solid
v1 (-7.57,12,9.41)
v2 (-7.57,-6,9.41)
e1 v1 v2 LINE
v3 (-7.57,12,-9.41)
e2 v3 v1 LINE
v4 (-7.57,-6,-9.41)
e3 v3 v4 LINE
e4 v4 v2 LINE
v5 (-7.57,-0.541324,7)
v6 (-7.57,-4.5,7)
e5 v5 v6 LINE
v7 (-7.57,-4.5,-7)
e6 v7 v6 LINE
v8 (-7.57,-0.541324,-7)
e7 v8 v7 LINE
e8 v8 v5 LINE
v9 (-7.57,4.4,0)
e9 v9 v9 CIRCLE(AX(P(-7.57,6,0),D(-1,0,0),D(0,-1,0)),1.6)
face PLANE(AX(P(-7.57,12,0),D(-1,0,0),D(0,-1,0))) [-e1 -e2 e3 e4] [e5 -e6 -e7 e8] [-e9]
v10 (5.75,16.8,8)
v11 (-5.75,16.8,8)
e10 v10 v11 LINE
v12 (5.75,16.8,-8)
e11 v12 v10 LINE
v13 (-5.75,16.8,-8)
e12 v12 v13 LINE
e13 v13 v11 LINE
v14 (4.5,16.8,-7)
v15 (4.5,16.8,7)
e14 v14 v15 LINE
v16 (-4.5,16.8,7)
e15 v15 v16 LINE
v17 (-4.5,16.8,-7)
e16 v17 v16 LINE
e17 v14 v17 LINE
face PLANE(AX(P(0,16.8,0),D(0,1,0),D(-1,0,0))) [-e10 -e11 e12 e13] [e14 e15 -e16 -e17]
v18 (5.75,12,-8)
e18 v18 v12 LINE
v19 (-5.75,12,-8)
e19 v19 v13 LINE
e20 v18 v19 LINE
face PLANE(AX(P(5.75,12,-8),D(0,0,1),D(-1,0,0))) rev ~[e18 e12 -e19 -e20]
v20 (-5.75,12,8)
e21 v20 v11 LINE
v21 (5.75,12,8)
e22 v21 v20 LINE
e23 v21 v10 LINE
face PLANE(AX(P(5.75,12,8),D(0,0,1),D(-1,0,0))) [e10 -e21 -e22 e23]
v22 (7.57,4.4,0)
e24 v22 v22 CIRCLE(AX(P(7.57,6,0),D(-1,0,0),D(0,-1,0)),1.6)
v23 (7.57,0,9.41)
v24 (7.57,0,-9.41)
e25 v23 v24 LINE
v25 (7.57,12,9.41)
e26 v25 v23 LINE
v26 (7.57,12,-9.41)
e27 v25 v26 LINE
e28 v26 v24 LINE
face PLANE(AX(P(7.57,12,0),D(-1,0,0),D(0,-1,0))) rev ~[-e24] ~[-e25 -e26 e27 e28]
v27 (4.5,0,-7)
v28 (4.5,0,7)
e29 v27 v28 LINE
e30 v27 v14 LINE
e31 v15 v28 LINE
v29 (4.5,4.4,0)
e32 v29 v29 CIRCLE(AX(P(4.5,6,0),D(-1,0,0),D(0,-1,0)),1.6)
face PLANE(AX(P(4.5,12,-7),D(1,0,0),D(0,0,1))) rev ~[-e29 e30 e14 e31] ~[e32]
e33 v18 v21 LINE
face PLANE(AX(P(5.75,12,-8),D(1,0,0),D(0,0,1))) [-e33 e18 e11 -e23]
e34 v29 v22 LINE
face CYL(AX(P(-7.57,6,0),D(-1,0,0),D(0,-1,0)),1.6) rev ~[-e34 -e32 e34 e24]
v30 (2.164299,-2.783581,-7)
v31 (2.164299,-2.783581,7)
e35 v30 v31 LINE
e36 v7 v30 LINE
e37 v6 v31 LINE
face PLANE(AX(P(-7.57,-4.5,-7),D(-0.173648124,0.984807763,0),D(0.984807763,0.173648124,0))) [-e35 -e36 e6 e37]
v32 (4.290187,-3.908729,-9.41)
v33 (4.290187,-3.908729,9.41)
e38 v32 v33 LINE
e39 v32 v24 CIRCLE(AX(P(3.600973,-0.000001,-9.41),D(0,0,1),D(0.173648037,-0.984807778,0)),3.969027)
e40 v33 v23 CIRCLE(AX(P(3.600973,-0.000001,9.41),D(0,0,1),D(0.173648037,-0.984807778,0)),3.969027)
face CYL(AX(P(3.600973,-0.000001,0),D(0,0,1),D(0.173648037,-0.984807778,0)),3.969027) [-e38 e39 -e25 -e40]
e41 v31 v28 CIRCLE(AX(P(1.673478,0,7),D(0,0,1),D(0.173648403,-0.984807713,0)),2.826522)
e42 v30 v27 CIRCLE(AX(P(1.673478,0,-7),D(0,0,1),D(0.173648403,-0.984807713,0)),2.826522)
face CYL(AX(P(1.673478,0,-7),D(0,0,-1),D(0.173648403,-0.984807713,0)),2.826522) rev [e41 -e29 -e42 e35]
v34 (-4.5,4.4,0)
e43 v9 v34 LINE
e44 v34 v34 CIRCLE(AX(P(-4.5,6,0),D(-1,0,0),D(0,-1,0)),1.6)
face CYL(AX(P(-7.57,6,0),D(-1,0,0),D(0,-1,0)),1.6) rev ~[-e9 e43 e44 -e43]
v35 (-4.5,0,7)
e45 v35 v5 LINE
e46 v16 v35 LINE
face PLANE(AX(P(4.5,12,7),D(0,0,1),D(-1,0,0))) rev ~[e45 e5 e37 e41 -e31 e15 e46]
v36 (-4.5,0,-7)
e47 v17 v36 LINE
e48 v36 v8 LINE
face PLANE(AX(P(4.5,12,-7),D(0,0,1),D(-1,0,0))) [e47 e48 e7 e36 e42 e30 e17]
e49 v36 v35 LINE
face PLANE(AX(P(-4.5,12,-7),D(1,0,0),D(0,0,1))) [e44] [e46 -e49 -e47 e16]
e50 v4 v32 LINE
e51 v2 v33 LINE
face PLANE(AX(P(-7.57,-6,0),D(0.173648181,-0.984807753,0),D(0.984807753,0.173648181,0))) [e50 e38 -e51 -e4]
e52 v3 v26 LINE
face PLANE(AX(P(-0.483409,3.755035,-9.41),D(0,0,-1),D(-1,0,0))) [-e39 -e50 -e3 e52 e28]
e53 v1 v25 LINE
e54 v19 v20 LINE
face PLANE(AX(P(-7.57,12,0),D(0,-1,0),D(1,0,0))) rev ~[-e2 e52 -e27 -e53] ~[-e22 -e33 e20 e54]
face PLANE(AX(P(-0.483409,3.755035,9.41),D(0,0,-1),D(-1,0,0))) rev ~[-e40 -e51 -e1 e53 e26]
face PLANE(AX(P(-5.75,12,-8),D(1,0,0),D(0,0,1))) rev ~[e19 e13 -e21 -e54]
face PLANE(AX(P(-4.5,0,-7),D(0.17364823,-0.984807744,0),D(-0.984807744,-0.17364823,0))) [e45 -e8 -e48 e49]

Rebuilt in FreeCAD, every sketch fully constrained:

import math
import FreeCAD as App
import Part
import Sketcher
from FreeCAD import Vector
Q = App.Units.Quantity


def add_polygon(sketch, points):
    """Adds a closed chain of lines whose ends are joined by coincident constraints."""
    first, n = sketch.GeometryCount, len(points)
    for a, b in zip(points, points[1:] + points[:1]):
        sketch.addGeometry(Part.LineSegment(App.Vector(*a, 0), App.Vector(*b, 0)), False)
    for i in range(n):
        sketch.addConstraint(Sketcher.Constraint("Coincident", first + i, 2, first + (i + 1) % n, 1))

doc = App.newDocument("Part")
body = doc.addObject("PartDesign::Body", "Body")

# Sketch on XY plane
sketch1 = doc.addObject("Sketcher::SketchObject", "Sketch")
body.addObject(sketch1)
sketch1.AttachmentSupport = (doc.XY_Plane, [""])
sketch1.MapMode = "FlatFace"
sketch1.addGeometry([
    Part.LineSegment(Vector(7.6, 12, 0), Vector(-7.6, 12, 0)),  # 0
    Part.LineSegment(Vector(-7.6, 12, 0), Vector(-7.6, -6, 0)),  # 1
    Part.LineSegment(Vector(-7.6, -6, 0), Vector(4.3, -3.9, 0)),  # 2
    Part.ArcOfCircle(Part.Circle(Vector(3.6, 0, 0), Vector(0, 0, 1), 4), math.radians(-80), math.radians(0)),  # 3
    Part.LineSegment(Vector(7.6, 0, 0), Vector(7.6, 12, 0)),  # 4
], False)
sketch1.addConstraint([
    Sketcher.Constraint("Coincident", 0, 2, 1, 1),
    Sketcher.Constraint("Coincident", 1, 2, 2, 1),
    Sketcher.Constraint("Tangent", 2, 2, 3, 1),
    Sketcher.Constraint("Tangent", 3, 2, 4, 1),
    Sketcher.Constraint("Coincident", 4, 2, 0, 1),
    Sketcher.Constraint("Horizontal", 0),
    Sketcher.Constraint("Vertical", 1),
    Sketcher.Constraint("Vertical", 4),
    Sketcher.Constraint("PointOnObject", 3, 3, -1),
    Sketcher.Constraint("DistanceY", 1, 2, 1, 1, Q("18 mm")),
    Sketcher.Constraint("DistanceY", 4, 1, 4, 2, Q("12 mm")),
    Sketcher.Constraint("Angle", 2, Q("10 deg")),
    Sketcher.Constraint("DistanceX", 0, 2, 0, 1, Q("15.14 mm")),
    Sketcher.Constraint("DistanceX", 0, 2, -1, 1, Q("7.57 mm")),
])
pad1 = doc.addObject("PartDesign::Pad", "Pad")
body.addObject(pad1)
pad1.Profile = sketch1
pad1.Length = 18.82
pad1.Midplane = True

# Sketch on XZ plane
sketch2 = doc.addObject("Sketcher::SketchObject", "Sketch001")
body.addObject(sketch2)
sketch2.AttachmentSupport = (doc.XZ_Plane, [""])
sketch2.MapMode = "FlatFace"
sketch2.AttachmentOffset = App.Placement(Vector(0, 0, -12), App.Rotation())
add_polygon(sketch2, [(4, 7), (4, -7), (-4, -7), (-4, 7)])  # lines 0-3
sketch2.addConstraint([
    Sketcher.Constraint("Vertical", 0),
    Sketcher.Constraint("Horizontal", 1),
    Sketcher.Constraint("Vertical", 2),
    Sketcher.Constraint("Horizontal", 3),
    Sketcher.Constraint("Symmetric", 0, 2, 2, 2, -1, 1),
    Sketcher.Constraint("DistanceX", 1, 2, 1, 1, Q("9 mm")),
    Sketcher.Constraint("DistanceY", 0, 2, 0, 1, Q("14 mm")),
])
pocket1 = doc.addObject("PartDesign::Pocket", "Pocket")
body.addObject(pocket1)
pocket1.Profile = sketch2
pocket1.Length = 12
pocket1.Reversed = True

# Sketch on XY plane
sketch3 = doc.addObject("Sketcher::SketchObject", "Sketch002")
body.addObject(sketch3)
sketch3.AttachmentSupport = (doc.XY_Plane, [""])
sketch3.MapMode = "FlatFace"
sketch3.AttachmentOffset = App.Placement(Vector(0, 0, -7), App.Rotation())
sketch3.addGeometry([
    Part.LineSegment(Vector(-4.5, 0, 0), Vector(-7.6, -0.5, 0)),  # 0
    Part.LineSegment(Vector(-7.6, -0.5, 0), Vector(-7.6, -4.5, 0)),  # 1
    Part.LineSegment(Vector(-7.6, -4.5, 0), Vector(2.2, -2.8, 0)),  # 2
    Part.ArcOfCircle(Part.Circle(Vector(1.7, 0, 0), Vector(0, 0, 1), 2.8), math.radians(-80), math.radians(0)),  # 3
    Part.LineSegment(Vector(4.5, 0, 0), Vector(-4.5, 0, 0)),  # 4
], False)
sketch3.addConstraint([
    Sketcher.Constraint("Coincident", 0, 2, 1, 1),
    Sketcher.Constraint("Coincident", 1, 2, 2, 1),
    Sketcher.Constraint("Tangent", 2, 2, 3, 1),
    Sketcher.Constraint("Coincident", 3, 2, 4, 1),
    Sketcher.Constraint("Coincident", 4, 2, 0, 1),
    Sketcher.Constraint("Vertical", 1),
    Sketcher.Constraint("Horizontal", 4),
    Sketcher.Constraint("Symmetric", 3, 2, 4, 2, -1, 1),
    Sketcher.Constraint("PointOnObject", 3, 3, -1),
    Sketcher.Constraint("Parallel", 0, 2),
    Sketcher.Constraint("DistanceX", 4, 2, 4, 1, Q("9 mm")),
    Sketcher.Constraint("Angle", 0, Q("-169.999997 deg")),
    Sketcher.Constraint("DistanceY", 1, 2, -1, 1, Q("4.5 mm")),
    Sketcher.Constraint("DistanceX", 0, 2, -1, 1, Q("7.57 mm")),
])
pocket2 = doc.addObject("PartDesign::Pocket", "Pocket001")
body.addObject(pocket2)
pocket2.Profile = sketch3
pocket2.Length = 14
pocket2.Reversed = True

# Sketch on XZ plane
sketch4 = doc.addObject("Sketcher::SketchObject", "Sketch003")
body.addObject(sketch4)
sketch4.AttachmentSupport = (doc.XZ_Plane, [""])
sketch4.MapMode = "FlatFace"
sketch4.AttachmentOffset = App.Placement(Vector(0, 0, -12), App.Rotation())
add_polygon(sketch4, [(6, 8), (6, -8), (-6, -8), (-6, 8)])  # lines 0-3
add_polygon(sketch4, [(-4, -7), (4, -7), (4, 7), (-4, 7)])  # lines 4-7
sketch4.addConstraint([
    Sketcher.Constraint("Vertical", 0),
    Sketcher.Constraint("Horizontal", 1),
    Sketcher.Constraint("Vertical", 2),
    Sketcher.Constraint("Horizontal", 3),
    Sketcher.Constraint("Horizontal", 4),
    Sketcher.Constraint("Vertical", 5),
    Sketcher.Constraint("Horizontal", 6),
    Sketcher.Constraint("Vertical", 7),
    Sketcher.Constraint("Symmetric", 0, 2, 2, 2, -1, 1),
    Sketcher.Constraint("Symmetric", 4, 2, 6, 2, -1, 1),
    Sketcher.Constraint("DistanceX", 4, 1, 4, 2, Q("9 mm")),
    Sketcher.Constraint("DistanceY", 0, 2, 0, 1, Q("16 mm")),
    Sketcher.Constraint("DistanceY", 5, 1, 5, 2, Q("14 mm")),
    Sketcher.Constraint("DistanceX", 1, 2, 1, 1, Q("11.5 mm")),
])
pad2 = doc.addObject("PartDesign::Pad", "Pad001")
body.addObject(pad2)
pad2.Profile = sketch4
pad2.Length = 4.8
pad2.Reversed = True

# Sketch on YZ plane
sketch5 = doc.addObject("Sketcher::SketchObject", "Sketch004")
body.addObject(sketch5)
sketch5.AttachmentSupport = (doc.YZ_Plane, [""])
sketch5.MapMode = "FlatFace"
sketch5.AttachmentOffset = App.Placement(Vector(0, 0, -7.57), App.Rotation())
sketch5.addGeometry(Part.Circle(Vector(6, 0, 0), Vector(0, 0, 1), 1.6), False)
sketch5.addConstraint([
    Sketcher.Constraint("PointOnObject", 0, 3, -1),
    Sketcher.Constraint("Diameter", 0, Q("3.2 mm")),
    Sketcher.Constraint("DistanceX", -1, 1, 0, 3, Q("6 mm")),
])
pocket3 = doc.addObject("PartDesign::Pocket", "Pocket002")
body.addObject(pocket3)
pocket3.Profile = sketch5
pocket3.Type = "ThroughAll"
pocket3.Reversed = True

doc.recompute()
